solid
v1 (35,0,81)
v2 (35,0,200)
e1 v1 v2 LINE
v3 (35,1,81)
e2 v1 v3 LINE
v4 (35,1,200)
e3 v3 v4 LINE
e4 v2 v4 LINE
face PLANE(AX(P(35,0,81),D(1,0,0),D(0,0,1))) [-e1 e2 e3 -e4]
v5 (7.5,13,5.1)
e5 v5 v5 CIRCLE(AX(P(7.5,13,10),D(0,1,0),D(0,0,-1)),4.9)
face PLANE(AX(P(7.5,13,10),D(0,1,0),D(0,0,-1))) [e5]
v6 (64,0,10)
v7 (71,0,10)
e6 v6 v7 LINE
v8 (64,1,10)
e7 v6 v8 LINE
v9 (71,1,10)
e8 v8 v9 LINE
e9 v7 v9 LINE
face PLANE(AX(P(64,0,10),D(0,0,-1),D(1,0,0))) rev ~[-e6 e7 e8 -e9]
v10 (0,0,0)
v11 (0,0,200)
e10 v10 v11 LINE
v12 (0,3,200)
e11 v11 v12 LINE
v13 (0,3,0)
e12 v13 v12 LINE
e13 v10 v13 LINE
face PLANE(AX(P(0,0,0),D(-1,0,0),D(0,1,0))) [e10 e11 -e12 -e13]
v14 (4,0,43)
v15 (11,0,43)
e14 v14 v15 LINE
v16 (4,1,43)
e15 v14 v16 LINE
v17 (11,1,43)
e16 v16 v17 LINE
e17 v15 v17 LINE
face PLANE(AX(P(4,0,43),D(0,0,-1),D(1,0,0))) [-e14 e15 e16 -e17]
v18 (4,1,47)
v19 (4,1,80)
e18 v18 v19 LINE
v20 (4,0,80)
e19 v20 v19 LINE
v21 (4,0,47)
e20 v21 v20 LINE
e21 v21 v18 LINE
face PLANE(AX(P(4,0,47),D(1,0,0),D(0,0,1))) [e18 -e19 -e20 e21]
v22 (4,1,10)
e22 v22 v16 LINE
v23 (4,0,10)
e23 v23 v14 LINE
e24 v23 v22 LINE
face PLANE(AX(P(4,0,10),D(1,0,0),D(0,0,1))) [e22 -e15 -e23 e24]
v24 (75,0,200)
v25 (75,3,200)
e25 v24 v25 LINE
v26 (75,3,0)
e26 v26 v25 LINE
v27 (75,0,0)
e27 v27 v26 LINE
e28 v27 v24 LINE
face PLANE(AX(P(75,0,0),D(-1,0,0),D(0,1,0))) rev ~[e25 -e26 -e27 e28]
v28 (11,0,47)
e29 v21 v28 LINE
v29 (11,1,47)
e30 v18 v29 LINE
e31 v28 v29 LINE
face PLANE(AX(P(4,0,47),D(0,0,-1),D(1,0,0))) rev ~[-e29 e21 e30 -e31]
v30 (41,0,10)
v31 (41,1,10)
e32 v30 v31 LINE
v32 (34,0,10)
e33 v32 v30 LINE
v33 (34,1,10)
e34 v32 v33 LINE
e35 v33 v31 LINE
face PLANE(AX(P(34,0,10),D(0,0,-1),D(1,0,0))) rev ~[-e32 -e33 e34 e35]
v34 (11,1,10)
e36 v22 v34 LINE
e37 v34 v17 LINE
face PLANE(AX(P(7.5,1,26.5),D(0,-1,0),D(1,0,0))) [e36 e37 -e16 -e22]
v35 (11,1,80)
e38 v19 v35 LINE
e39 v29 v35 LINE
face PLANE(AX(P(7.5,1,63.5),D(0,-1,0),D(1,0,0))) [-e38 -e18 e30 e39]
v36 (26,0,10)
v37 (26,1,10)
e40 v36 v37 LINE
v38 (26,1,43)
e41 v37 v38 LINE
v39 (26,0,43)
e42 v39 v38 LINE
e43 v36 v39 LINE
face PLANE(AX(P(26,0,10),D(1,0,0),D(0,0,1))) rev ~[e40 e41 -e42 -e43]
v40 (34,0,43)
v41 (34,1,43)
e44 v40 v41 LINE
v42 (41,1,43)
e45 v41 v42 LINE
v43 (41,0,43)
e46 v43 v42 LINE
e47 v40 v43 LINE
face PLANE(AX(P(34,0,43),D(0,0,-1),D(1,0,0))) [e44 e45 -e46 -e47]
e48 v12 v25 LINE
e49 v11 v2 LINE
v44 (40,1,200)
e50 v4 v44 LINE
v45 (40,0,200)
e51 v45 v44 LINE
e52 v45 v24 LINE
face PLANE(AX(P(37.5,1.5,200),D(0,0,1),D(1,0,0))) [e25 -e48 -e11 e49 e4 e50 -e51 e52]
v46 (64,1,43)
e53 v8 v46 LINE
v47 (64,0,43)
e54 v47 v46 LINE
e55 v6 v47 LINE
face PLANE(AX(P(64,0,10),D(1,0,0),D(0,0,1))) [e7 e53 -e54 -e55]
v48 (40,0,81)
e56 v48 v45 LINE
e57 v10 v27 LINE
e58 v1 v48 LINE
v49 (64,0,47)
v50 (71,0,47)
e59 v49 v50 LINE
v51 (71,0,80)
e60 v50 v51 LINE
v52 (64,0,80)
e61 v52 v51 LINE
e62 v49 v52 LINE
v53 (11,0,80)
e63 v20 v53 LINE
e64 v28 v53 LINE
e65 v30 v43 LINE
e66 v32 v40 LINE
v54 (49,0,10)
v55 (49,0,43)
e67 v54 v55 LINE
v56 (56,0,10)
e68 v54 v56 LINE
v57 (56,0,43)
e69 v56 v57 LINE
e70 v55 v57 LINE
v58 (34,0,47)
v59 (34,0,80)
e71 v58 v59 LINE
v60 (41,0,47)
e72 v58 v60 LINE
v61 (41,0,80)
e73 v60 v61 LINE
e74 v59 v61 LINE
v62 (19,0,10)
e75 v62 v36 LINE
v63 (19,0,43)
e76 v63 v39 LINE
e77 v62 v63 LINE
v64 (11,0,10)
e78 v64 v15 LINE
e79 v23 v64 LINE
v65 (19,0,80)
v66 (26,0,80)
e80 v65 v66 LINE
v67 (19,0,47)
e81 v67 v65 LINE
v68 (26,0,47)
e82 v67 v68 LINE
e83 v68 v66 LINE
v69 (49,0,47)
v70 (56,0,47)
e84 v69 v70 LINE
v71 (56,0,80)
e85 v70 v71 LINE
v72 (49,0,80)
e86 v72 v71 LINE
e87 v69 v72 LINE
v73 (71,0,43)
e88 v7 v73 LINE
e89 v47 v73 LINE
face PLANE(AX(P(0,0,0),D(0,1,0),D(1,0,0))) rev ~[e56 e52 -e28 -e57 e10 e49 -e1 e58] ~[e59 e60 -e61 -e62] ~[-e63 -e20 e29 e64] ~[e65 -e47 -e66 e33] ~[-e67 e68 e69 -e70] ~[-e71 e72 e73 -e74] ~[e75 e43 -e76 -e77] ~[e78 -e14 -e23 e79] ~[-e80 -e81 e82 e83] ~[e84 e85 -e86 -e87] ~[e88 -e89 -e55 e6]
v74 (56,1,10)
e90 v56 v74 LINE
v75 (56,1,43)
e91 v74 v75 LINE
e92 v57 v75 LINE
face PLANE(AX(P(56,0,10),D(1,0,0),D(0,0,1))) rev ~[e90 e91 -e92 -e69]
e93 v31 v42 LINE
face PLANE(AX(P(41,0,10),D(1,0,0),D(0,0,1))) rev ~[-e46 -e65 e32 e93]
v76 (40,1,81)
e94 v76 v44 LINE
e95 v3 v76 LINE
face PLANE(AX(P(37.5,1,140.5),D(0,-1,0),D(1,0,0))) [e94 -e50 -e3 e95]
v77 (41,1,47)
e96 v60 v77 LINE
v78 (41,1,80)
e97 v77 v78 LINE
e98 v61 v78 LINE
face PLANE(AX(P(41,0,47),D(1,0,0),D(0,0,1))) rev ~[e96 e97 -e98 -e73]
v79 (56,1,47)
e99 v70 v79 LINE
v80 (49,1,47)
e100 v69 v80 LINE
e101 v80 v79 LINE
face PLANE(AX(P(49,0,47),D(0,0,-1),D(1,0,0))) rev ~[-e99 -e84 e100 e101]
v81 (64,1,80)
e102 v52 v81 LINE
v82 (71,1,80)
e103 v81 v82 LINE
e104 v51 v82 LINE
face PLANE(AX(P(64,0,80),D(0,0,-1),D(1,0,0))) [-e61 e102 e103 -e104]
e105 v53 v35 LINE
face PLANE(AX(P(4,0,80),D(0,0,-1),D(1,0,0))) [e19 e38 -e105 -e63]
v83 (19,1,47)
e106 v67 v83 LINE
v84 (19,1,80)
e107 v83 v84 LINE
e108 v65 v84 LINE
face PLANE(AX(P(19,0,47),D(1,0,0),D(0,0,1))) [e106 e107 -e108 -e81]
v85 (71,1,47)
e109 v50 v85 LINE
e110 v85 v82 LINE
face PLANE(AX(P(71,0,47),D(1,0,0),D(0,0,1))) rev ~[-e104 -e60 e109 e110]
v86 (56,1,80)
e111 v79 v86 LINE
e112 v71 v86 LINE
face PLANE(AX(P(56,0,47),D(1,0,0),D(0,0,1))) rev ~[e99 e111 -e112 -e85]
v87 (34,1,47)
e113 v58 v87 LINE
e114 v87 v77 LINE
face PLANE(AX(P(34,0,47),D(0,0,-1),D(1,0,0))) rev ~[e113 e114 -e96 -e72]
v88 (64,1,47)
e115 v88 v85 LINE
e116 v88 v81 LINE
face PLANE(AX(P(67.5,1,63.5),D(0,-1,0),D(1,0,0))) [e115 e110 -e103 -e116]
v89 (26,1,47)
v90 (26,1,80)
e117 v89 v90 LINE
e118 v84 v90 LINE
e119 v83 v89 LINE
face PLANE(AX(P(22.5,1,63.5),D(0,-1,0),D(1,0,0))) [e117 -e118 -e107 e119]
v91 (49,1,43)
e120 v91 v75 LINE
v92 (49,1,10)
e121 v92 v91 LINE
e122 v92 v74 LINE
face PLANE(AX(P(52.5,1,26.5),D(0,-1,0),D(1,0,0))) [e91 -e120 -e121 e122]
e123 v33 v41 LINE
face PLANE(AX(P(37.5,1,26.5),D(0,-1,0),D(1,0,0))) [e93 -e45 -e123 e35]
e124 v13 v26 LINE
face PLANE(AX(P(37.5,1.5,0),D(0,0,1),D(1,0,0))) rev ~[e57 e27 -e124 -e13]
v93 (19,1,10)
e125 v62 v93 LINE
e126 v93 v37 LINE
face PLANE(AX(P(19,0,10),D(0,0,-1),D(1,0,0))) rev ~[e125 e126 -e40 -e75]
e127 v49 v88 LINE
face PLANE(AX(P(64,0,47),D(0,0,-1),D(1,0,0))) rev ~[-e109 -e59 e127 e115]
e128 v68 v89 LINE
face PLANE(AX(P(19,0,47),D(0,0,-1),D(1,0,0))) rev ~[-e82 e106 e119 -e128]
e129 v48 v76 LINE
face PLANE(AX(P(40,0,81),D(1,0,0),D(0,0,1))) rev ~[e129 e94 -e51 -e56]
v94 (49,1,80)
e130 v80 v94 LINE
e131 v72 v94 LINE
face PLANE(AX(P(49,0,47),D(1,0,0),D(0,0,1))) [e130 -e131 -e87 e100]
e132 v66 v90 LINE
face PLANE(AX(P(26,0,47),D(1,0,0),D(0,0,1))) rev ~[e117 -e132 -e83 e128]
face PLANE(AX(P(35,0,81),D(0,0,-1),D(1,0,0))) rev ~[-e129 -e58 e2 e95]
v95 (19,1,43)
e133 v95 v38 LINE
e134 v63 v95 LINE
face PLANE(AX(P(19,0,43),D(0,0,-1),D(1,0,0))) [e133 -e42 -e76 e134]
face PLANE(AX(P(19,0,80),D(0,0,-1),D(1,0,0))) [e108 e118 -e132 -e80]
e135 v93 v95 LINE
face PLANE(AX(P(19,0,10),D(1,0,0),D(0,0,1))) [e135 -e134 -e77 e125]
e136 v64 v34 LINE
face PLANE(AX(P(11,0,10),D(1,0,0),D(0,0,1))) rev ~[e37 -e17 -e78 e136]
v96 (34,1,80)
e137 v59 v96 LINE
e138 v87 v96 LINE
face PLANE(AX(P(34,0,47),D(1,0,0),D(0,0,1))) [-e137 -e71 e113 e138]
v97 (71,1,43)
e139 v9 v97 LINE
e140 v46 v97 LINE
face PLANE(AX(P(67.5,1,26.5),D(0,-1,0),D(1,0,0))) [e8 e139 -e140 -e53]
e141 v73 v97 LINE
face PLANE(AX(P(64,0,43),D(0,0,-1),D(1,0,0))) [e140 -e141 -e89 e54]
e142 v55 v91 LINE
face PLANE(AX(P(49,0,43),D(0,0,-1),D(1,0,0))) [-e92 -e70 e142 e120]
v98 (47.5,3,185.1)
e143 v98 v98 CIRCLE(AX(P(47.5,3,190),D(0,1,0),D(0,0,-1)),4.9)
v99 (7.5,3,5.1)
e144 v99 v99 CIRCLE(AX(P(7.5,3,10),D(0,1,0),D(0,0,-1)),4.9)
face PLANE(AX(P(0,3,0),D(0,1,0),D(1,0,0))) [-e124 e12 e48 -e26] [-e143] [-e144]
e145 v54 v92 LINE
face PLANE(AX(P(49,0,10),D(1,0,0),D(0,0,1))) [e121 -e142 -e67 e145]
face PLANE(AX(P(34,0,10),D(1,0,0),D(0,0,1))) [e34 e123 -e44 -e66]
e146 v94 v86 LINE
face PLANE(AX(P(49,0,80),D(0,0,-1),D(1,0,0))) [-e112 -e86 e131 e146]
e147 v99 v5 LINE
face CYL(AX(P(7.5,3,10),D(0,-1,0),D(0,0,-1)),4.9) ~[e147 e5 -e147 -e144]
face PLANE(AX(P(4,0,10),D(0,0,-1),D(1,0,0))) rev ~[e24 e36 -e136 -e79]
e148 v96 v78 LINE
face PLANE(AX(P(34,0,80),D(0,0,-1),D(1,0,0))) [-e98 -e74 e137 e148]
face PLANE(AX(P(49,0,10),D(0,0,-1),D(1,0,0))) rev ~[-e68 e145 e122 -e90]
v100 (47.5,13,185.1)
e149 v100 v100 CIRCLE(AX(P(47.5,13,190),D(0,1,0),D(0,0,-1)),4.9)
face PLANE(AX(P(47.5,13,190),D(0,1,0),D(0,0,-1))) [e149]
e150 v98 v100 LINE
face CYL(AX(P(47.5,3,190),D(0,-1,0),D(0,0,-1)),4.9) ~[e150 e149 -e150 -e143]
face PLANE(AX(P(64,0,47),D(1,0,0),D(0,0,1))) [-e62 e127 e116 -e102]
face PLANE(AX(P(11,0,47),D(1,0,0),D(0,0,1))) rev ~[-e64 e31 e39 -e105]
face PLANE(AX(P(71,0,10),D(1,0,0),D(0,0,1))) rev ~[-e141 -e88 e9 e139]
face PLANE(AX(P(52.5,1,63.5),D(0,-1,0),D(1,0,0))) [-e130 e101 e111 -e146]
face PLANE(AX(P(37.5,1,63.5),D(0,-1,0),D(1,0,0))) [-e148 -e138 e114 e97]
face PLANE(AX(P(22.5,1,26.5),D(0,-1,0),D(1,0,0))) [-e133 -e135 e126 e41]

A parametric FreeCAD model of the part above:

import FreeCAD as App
import Part
import Sketcher
from FreeCAD import Vector
Q = App.Units.Quantity

doc = App.newDocument("Part")
params = doc.addObject("Spreadsheet::Sheet", "Params")
for row, (alias, value) in enumerate([
    ("sketch1_width", "75 mm"),
    ("sketch1_height", "3 mm"),
    ("pad1_length", "200 mm"),
    ("sketch2_diameter", "9.8 mm"),
    ("pad2_length", "10 mm"),
    ("sketch3_width", "5 mm"),
    ("sketch3_height", "119 mm"),
    ("pocket1_length", "1 mm"),
    ("sketch4_width", "7 mm"),
    ("sketch4_height", "33 mm"),
    ("pocket2_length", "1 mm"),
], start=1):
    params.set(f"A{row}", alias)
    params.set(f"B{row}", "=" + value)
    params.setAlias(f"B{row}", alias)

body = doc.addObject("PartDesign::Body", "Body")

# Sketch on XY plane
sketch1 = doc.addObject("Sketcher::SketchObject", "Sketch")
body.addObject(sketch1)
sketch1.AttachmentSupport = (doc.XY_Plane, [""])
sketch1.MapMode = "FlatFace"
sketch1.addGeometry([
    Part.LineSegment(Vector(0, 3, 0), Vector(0, 0, 0)),
    Part.LineSegment(Vector(0, 0, 0), Vector(75, 0, 0)),
    Part.LineSegment(Vector(75, 0, 0), Vector(75, 3, 0)),
    Part.LineSegment(Vector(75, 3, 0), Vector(0, 3, 0)),
], False)
sketch1.addConstraint([
    Sketcher.Constraint("Coincident", 0, 2, 1, 1),
    Sketcher.Constraint("Coincident", 1, 2, 2, 1),
    Sketcher.Constraint("Coincident", 2, 2, 3, 1),
    Sketcher.Constraint("Coincident", 3, 2, 0, 1),
    Sketcher.Constraint("Vertical", 0),
    Sketcher.Constraint("Horizontal", 1),
    Sketcher.Constraint("Vertical", 2),
    Sketcher.Constraint("Horizontal", 3),
    Sketcher.Constraint("Coincident", 0, 2, -1, 1),
    Sketcher.Constraint("DistanceX", 1, 1, 1, 2, Q("75 mm")),
    Sketcher.Constraint("DistanceY", 0, 2, 0, 1, Q("3 mm")),
])
sketch1.setExpression("Constraints[9]", "Params.sketch1_width")
sketch1.setExpression("Constraints[10]", "Params.sketch1_height")
pad1 = doc.addObject("PartDesign::Pad", "Pad")
body.addObject(pad1)
pad1.Profile = sketch1
pad1.setExpression("Length", "Params.pad1_length")

# Sketch on XZ plane
sketch2 = doc.addObject("Sketcher::SketchObject", "Sketch001")
body.addObject(sketch2)
sketch2.AttachmentSupport = (doc.XZ_Plane, [""])
sketch2.MapMode = "FlatFace"
sketch2.AttachmentOffset = App.Placement(Vector(0, 0, -3), App.Rotation())
sketch2.addGeometry([
    Part.Circle(Vector(7.5, 10, 0), Vector(0, 0, 1), 4.9),
    Part.Circle(Vector(47.5, 190, 0), Vector(0, 0, 1), 4.9),
], False)
sketch2.addConstraint([
    Sketcher.Constraint("Equal", 0, 1),
    Sketcher.Constraint("Diameter", 0, Q("9.8 mm")),
    Sketcher.Constraint("DistanceY", -1, 1, 0, 3, Q("10 mm")),
    Sketcher.Constraint("DistanceY", -1, 1, 1, 3, Q("190 mm")),
    Sketcher.Constraint("DistanceX", 0, 3, 1, 3, Q("40 mm")),
    Sketcher.Constraint("DistanceX", -1, 1, 0, 3, Q("7.5 mm")),
])
sketch2.setExpression("Constraints[1]", "Params.sketch2_diameter")
pad2 = doc.addObject("PartDesign::Pad", "Pad001")
body.addObject(pad2)
pad2.Profile = sketch2
pad2.setExpression("Length", "Params.pad2_length")
pad2.Reversed = True

# Sketch on XZ plane
sketch3 = doc.addObject("Sketcher::SketchObject", "Sketch002")
body.addObject(sketch3)
sketch3.AttachmentSupport = (doc.XZ_Plane, [""])
sketch3.MapMode = "FlatFace"
sketch3.addGeometry([
    Part.LineSegment(Vector(35, 200, 0), Vector(35, 81, 0)),
    Part.LineSegment(Vector(35, 81, 0), Vector(40, 81, 0)),
    Part.LineSegment(Vector(40, 81, 0), Vector(40, 200, 0)),
    Part.LineSegment(Vector(40, 200, 0), Vector(35, 200, 0)),
], False)
sketch3.addConstraint([
    Sketcher.Constraint("Coincident", 0, 2, 1, 1),
    Sketcher.Constraint("Coincident", 1, 2, 2, 1),
    Sketcher.Constraint("Coincident", 2, 2, 3, 1),
    Sketcher.Constraint("Coincident", 3, 2, 0, 1),
    Sketcher.Constraint("Vertical", 0),
    Sketcher.Constraint("Horizontal", 1),
    Sketcher.Constraint("Vertical", 2),
    Sketcher.Constraint("Horizontal", 3),
    Sketcher.Constraint("DistanceX", 1, 1, 1, 2, Q("5 mm")),
    Sketcher.Constraint("DistanceY", 0, 2, 0, 1, Q("119 mm")),
    Sketcher.Constraint("DistanceX", -1, 1, 0, 2, Q("35 mm")),
    Sketcher.Constraint("DistanceY", -1, 1, 0, 2, Q("81 mm")),
])
sketch3.setExpression("Constraints[8]", "Params.sketch3_width")
sketch3.setExpression("Constraints[9]", "Params.sketch3_height")
pocket1 = doc.addObject("PartDesign::Pocket", "Pocket")
body.addObject(pocket1)
pocket1.Profile = sketch3
pocket1.setExpression("Length", "Params.pocket1_length")

# Sketch on XZ plane
sketch4 = doc.addObject("Sketcher::SketchObject", "Sketch003")
body.addObject(sketch4)
sketch4.AttachmentSupport = (doc.XZ_Plane, [""])
sketch4.MapMode = "FlatFace"
sketch4.addGeometry([
    Part.LineSegment(Vector(4, 43, 0), Vector(4, 10, 0)),  # 0
    Part.LineSegment(Vector(4, 10, 0), Vector(11, 10, 0)),  # 1
    Part.LineSegment(Vector(11, 10, 0), Vector(11, 43, 0)),  # 2
    Part.LineSegment(Vector(11, 43, 0), Vector(4, 43, 0)),  # 3
    Part.LineSegment(Vector(4, 80, 0), Vector(4, 47, 0)),  # 4
    Part.LineSegment(Vector(4, 47, 0), Vector(11, 47, 0)),  # 5
    Part.LineSegment(Vector(11, 47, 0), Vector(11, 80, 0)),  # 6
    Part.LineSegment(Vector(11, 80, 0), Vector(4, 80, 0)),  # 7
    Part.LineSegment(Vector(19, 43, 0), Vector(19, 10, 0)),  # 8
    Part.LineSegment(Vector(19, 10, 0), Vector(26, 10, 0)),  # 9
    Part.LineSegment(Vector(26, 10, 0), Vector(26, 43, 0)),  # 10
    Part.LineSegment(Vector(26, 43, 0), Vector(19, 43, 0)),  # 11
    Part.LineSegment(Vector(19, 80, 0), Vector(19, 47, 0)),  # 12
    Part.LineSegment(Vector(19, 47, 0), Vector(26, 47, 0)),  # 13
    Part.LineSegment(Vector(26, 47, 0), Vector(26, 80, 0)),  # 14
    Part.LineSegment(Vector(26, 80, 0), Vector(19, 80, 0)),  # 15
    Part.LineSegment(Vector(34, 43, 0), Vector(34, 10, 0)),  # 16
    Part.LineSegment(Vector(34, 10, 0), Vector(41, 10, 0)),  # 17
    Part.LineSegment(Vector(41, 10, 0), Vector(41, 43, 0)),  # 18
    Part.LineSegment(Vector(41, 43, 0), Vector(34, 43, 0)),  # 19
    Part.LineSegment(Vector(34, 80, 0), Vector(34, 47, 0)),  # 20
    Part.LineSegment(Vector(34, 47, 0), Vector(41, 47, 0)),  # 21
    Part.LineSegment(Vector(41, 47, 0), Vector(41, 80, 0)),  # 22
    Part.LineSegment(Vector(41, 80, 0), Vector(34, 80, 0)),  # 23
    Part.LineSegment(Vector(49, 43, 0), Vector(49, 10, 0)),  # 24
    Part.LineSegment(Vector(49, 10, 0), Vector(56, 10, 0)),  # 25
    Part.LineSegment(Vector(56, 10, 0), Vector(56, 43, 0)),  # 26
    Part.LineSegment(Vector(56, 43, 0), Vector(49, 43, 0)),  # 27
    Part.LineSegment(Vector(49, 80, 0), Vector(49, 47, 0)),  # 28
    Part.LineSegment(Vector(49, 47, 0), Vector(56, 47, 0)),  # 29
    Part.LineSegment(Vector(56, 47, 0), Vector(56, 80, 0)),  # 30
    Part.LineSegment(Vector(56, 80, 0), Vector(49, 80, 0)),  # 31
    Part.LineSegment(Vector(64, 43, 0), Vector(64, 10, 0)),  # 32
    Part.LineSegment(Vector(64, 10, 0), Vector(71, 10, 0)),  # 33
    Part.LineSegment(Vector(71, 10, 0), Vector(71, 43, 0)),  # 34
    Part.LineSegment(Vector(71, 43, 0), Vector(64, 43, 0)),  # 35
    Part.LineSegment(Vector(64, 80, 0), Vector(64, 47, 0)),  # 36
    Part.LineSegment(Vector(64, 47, 0), Vector(71, 47, 0)),  # 37
    Part.LineSegment(Vector(71, 47, 0), Vector(71, 80, 0)),  # 38
    Part.LineSegment(Vector(71, 80, 0), Vector(64, 80, 0)),  # 39
], False)
sketch4.addConstraint([
    Sketcher.Constraint("Coincident", 0, 2, 1, 1),
    Sketcher.Constraint("Coincident", 1, 2, 2, 1),
    Sketcher.Constraint("Coincident", 2, 2, 3, 1),
    Sketcher.Constraint("Coincident", 3, 2, 0, 1),
    Sketcher.Constraint("Coincident", 4, 2, 5, 1),
    Sketcher.Constraint("Coincident", 5, 2, 6, 1),
    Sketcher.Constraint("Coincident", 6, 2, 7, 1),
    Sketcher.Constraint("Coincident", 7, 2, 4, 1),
    Sketcher.Constraint("Coincident", 8, 2, 9, 1),
    Sketcher.Constraint("Coincident", 9, 2, 10, 1),
    Sketcher.Constraint("Coincident", 10, 2, 11, 1),
    Sketcher.Constraint("Coincident", 11, 2, 8, 1),
    Sketcher.Constraint("Coincident", 12, 2, 13, 1),
    Sketcher.Constraint("Coincident", 13, 2, 14, 1),
    Sketcher.Constraint("Coincident", 14, 2, 15, 1),
    Sketcher.Constraint("Coincident", 15, 2, 12, 1),
    Sketcher.Constraint("Coincident", 16, 2, 17, 1),
    Sketcher.Constraint("Coincident", 17, 2, 18, 1),
    Sketcher.Constraint("Coincident", 18, 2, 19, 1),
    Sketcher.Constraint("Coincident", 19, 2, 16, 1),
    Sketcher.Constraint("Coincident", 20, 2, 21, 1),
    Sketcher.Constraint("Coincident", 21, 2, 22, 1),
    Sketcher.Constraint("Coincident", 22, 2, 23, 1),
    Sketcher.Constraint("Coincident", 23, 2, 20, 1),
    Sketcher.Constraint("Coincident", 24, 2, 25, 1),
    Sketcher.Constraint("Coincident", 25, 2, 26, 1),
    Sketcher.Constraint("Coincident", 26, 2, 27, 1),
    Sketcher.Constraint("Coincident", 27, 2, 24, 1),
    Sketcher.Constraint("Coincident", 28, 2, 29, 1),
    Sketcher.Constraint("Coincident", 29, 2, 30, 1),
    Sketcher.Constraint("Coincident", 30, 2, 31, 1),
    Sketcher.Constraint("Coincident", 31, 2, 28, 1),
    Sketcher.Constraint("Coincident", 32, 2, 33, 1),
    Sketcher.Constraint("Coincident", 33, 2, 34, 1),
    Sketcher.Constraint("Coincident", 34, 2, 35, 1),
    Sketcher.Constraint("Coincident", 35, 2, 32, 1),
    Sketcher.Constraint("Coincident", 36, 2, 37, 1),
    Sketcher.Constraint("Coincident", 37, 2, 38, 1),
    Sketcher.Constraint("Coincident", 38, 2, 39, 1),
    Sketcher.Constraint("Coincident", 39, 2, 36, 1),
    Sketcher.Constraint("Vertical", 0),
    Sketcher.Constraint("Horizontal", 1),
    Sketcher.Constraint("Vertical", 2),
    Sketcher.Constraint("Horizontal", 3),
    Sketcher.Constraint("Vertical", 4),
    Sketcher.Constraint("Horizontal", 5),
    Sketcher.Constraint("Vertical", 6),
    Sketcher.Constraint("Horizontal", 7),
    Sketcher.Constraint("Vertical", 8),
    Sketcher.Constraint("Horizontal", 9),
    Sketcher.Constraint("Vertical", 10),
    Sketcher.Constraint("Horizontal", 11),
    Sketcher.Constraint("Vertical", 12),
    Sketcher.Constraint("Horizontal", 13),
    Sketcher.Constraint("Vertical", 14),
    Sketcher.Constraint("Horizontal", 15),
    Sketcher.Constraint("Vertical", 16),
    Sketcher.Constraint("Horizontal", 17),
    Sketcher.Constraint("Vertical", 18),
    Sketcher.Constraint("Horizontal", 19),
    Sketcher.Constraint("Vertical", 20),
    Sketcher.Constraint("Horizontal", 21),
    Sketcher.Constraint("Vertical", 22),
    Sketcher.Constraint("Horizontal", 23),
    Sketcher.Constraint("Vertical", 24),
    Sketcher.Constraint("Horizontal", 25),
    Sketcher.Constraint("Vertical", 26),
    Sketcher.Constraint("Horizontal", 27),
    Sketcher.Constraint("Vertical", 28),
    Sketcher.Constraint("Horizontal", 29),
    Sketcher.Constraint("Vertical", 30),
    Sketcher.Constraint("Horizontal", 31),
    Sketcher.Constraint("Vertical", 32),
    Sketcher.Constraint("Horizontal", 33),
    Sketcher.Constraint("Vertical", 34),
    Sketcher.Constraint("Horizontal", 35),
    Sketcher.Constraint("Vertical", 36),
    Sketcher.Constraint("Horizontal", 37),
    Sketcher.Constraint("Vertical", 38),
    Sketcher.Constraint("Horizontal", 39),
    Sketcher.Constraint("Horizontal", 1, 2, 8, 2),
    Sketcher.Constraint("Horizontal", 3, 2, 10, 2),
    Sketcher.Constraint("Horizontal", 5, 2, 12, 2),
    Sketcher.Constraint("Horizontal", 7, 2, 14, 2),
    Sketcher.Constraint("Horizontal", 9, 2, 16, 2),
    Sketcher.Constraint("Horizontal", 11, 2, 18, 2),
    Sketcher.Constraint("Horizontal", 13, 2, 20, 2),
    Sketcher.Constraint("Horizontal", 15, 2, 22, 2),
    Sketcher.Constraint("Horizontal", 17, 2, 24, 2),
    Sketcher.Constraint("Horizontal", 19, 2, 26, 2),
    Sketcher.Constraint("Horizontal", 21, 2, 28, 2),
    Sketcher.Constraint("Horizontal", 23, 2, 30, 2),
    Sketcher.Constraint("Horizontal", 25, 2, 32, 2),
    Sketcher.Constraint("Horizontal", 27, 2, 34, 2),
    Sketcher.Constraint("Horizontal", 29, 2, 36, 2),
    Sketcher.Constraint("Horizontal", 31, 2, 38, 2),
    Sketcher.Constraint("Vertical", 3, 2, 4, 2),
    Sketcher.Constraint("Vertical", 2, 2, 5, 2),
    Sketcher.Constraint("Vertical", 11, 2, 12, 2),
    Sketcher.Constraint("Vertical", 10, 2, 13, 2),
    Sketcher.Constraint("Vertical", 19, 2, 20, 2),
    Sketcher.Constraint("Vertical", 18, 2, 21, 2),
    Sketcher.Constraint("Vertical", 27, 2, 28, 2),
    Sketcher.Constraint("Vertical", 26, 2, 29, 2),
    Sketcher.Constraint("Vertical", 35, 2, 36, 2),
    Sketcher.Constraint("Vertical", 34, 2, 37, 2),
    Sketcher.Constraint("Equal", 7, 9),
    Sketcher.Constraint("Equal", 15, 17),
    Sketcher.Constraint("Equal", 23, 25),
    Sketcher.Constraint("Equal", 31, 33),
    Sketcher.Constraint("Equal", 2, 4),
    Sketcher.Constraint("DistanceX", 1, 1, 1, 2, Q("7 mm")),
    Sketcher.Constraint("DistanceY", 0, 2, 0, 1, Q("33 mm")),
    Sketcher.Constraint("DistanceX", -1, 1, 0, 2, Q("4 mm")),
    Sketcher.Constraint("DistanceY", -1, 1, 0, 2, Q("10 mm")),
    Sketcher.Constraint("DistanceY", -1, 1, 4, 2, Q("47 mm")),
    Sketcher.Constraint("DistanceX", -1, 1, 8, 2, Q("19 mm")),
    Sketcher.Constraint("DistanceX", -1, 1, 16, 2, Q("34 mm")),
    Sketcher.Constraint("DistanceX", -1, 1, 24, 2, Q("49 mm")),
    Sketcher.Constraint("DistanceX", -1, 1, 32, 2, Q("64 mm")),
])
sketch4.setExpression("Constraints[111]", "Params.sketch4_width")
sketch4.setExpression("Constraints[112]", "Params.sketch4_height")
pocket2 = doc.addObject("PartDesign::Pocket", "Pocket001")
body.addObject(pocket2)
pocket2.Profile = sketch4
pocket2.setExpression("Length", "Params.pocket2_length")

doc.recompute()
